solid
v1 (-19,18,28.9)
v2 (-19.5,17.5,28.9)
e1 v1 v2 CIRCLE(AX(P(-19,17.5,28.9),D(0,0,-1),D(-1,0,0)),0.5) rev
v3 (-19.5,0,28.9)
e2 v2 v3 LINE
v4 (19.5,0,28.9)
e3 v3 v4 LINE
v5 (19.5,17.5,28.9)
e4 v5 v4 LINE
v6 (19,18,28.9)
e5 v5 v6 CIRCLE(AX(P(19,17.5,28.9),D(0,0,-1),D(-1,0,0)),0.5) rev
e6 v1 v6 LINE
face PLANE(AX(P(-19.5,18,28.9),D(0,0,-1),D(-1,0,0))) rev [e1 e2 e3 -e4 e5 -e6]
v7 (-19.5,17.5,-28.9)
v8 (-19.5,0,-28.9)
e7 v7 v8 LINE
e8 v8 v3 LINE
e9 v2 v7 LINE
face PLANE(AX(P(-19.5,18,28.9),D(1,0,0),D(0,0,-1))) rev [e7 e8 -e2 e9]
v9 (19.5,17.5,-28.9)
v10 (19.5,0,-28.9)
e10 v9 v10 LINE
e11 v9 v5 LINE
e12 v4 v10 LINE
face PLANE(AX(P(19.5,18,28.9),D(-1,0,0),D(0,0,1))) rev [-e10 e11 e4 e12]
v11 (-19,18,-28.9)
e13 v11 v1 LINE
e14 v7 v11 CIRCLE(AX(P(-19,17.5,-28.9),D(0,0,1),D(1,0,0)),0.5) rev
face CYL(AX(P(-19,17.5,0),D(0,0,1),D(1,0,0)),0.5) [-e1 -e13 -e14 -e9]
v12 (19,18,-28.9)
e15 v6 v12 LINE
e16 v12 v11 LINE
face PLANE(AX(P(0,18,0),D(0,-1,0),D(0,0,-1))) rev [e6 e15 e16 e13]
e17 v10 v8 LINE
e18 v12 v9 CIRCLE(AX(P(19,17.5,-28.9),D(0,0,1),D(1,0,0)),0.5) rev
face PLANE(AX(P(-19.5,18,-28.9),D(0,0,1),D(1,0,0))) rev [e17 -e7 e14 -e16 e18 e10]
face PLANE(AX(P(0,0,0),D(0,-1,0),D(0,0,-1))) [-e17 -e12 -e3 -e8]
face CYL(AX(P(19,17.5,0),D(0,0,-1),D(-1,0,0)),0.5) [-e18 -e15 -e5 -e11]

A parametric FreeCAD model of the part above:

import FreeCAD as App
import Part
import Sketcher
Q = App.Units.Quantity


def edges_at(feature, points):
    """Names of the edges that pass closest to the given points."""
    edges = feature.Shape.Edges
    near = lambda p: min(range(len(edges)), key=lambda i: edges[i].distToShape(Part.Vertex(*p))[0])
    return sorted({f"Edge{near(p) + 1}" for p in points})


def add_polygon(sketch, points):
    """Adds a closed chain of lines whose ends are joined by coincident constraints."""
    first, n = sketch.GeometryCount, len(points)
    for a, b in zip(points, points[1:] + points[:1]):
        sketch.addGeometry(Part.LineSegment(App.Vector(*a, 0), App.Vector(*b, 0)), False)
    for i in range(n):
        sketch.addConstraint(Sketcher.Constraint("Coincident", first + i, 2, first + (i + 1) % n, 1))

doc = App.newDocument("Part")
body = doc.addObject("PartDesign::Body", "Body")

# Sketch on XZ plane
sketch1 = body.newObject("Sketcher::SketchObject", "Sketch")
sketch1.AttachmentSupport = (doc.getObject("XZ_Plane"), [""])
sketch1.MapMode = "FlatFace"
add_polygon(sketch1, [(-19.5, -28.9), (-19.5, 28.9), (19.5, 28.9), (19.5, -28.9)])  # lines 0-3
sketch1.addConstraint(Sketcher.Constraint("Vertical", 0))
sketch1.addConstraint(Sketcher.Constraint("Horizontal", 1))
sketch1.addConstraint(Sketcher.Constraint("Vertical", 2))
sketch1.addConstraint(Sketcher.Constraint("Horizontal", 3))
sketch1.addConstraint(Sketcher.Constraint("Symmetric", 0, 2, 2, 2, -1, 1))
sketch1.addConstraint(Sketcher.Constraint("DistanceX", 1, 1, 1, 2, Q("39 mm")))
sketch1.addConstraint(Sketcher.Constraint("DistanceY", 0, 1, 0, 2, Q("57.8 mm")))
pad1 = body.newObject("PartDesign::Pad", "Pad")
pad1.Profile = sketch1
pad1.Length = 18
pad1.Reversed = True
doc.recompute()

fillet = body.newObject("PartDesign::Fillet", "Fillet")
fillet.Base = (pad1, edges_at(pad1, [(-19.5, 18, 0), (19.5, 18, 0)]))
fillet.Radius = 0.5

doc.recompute()
